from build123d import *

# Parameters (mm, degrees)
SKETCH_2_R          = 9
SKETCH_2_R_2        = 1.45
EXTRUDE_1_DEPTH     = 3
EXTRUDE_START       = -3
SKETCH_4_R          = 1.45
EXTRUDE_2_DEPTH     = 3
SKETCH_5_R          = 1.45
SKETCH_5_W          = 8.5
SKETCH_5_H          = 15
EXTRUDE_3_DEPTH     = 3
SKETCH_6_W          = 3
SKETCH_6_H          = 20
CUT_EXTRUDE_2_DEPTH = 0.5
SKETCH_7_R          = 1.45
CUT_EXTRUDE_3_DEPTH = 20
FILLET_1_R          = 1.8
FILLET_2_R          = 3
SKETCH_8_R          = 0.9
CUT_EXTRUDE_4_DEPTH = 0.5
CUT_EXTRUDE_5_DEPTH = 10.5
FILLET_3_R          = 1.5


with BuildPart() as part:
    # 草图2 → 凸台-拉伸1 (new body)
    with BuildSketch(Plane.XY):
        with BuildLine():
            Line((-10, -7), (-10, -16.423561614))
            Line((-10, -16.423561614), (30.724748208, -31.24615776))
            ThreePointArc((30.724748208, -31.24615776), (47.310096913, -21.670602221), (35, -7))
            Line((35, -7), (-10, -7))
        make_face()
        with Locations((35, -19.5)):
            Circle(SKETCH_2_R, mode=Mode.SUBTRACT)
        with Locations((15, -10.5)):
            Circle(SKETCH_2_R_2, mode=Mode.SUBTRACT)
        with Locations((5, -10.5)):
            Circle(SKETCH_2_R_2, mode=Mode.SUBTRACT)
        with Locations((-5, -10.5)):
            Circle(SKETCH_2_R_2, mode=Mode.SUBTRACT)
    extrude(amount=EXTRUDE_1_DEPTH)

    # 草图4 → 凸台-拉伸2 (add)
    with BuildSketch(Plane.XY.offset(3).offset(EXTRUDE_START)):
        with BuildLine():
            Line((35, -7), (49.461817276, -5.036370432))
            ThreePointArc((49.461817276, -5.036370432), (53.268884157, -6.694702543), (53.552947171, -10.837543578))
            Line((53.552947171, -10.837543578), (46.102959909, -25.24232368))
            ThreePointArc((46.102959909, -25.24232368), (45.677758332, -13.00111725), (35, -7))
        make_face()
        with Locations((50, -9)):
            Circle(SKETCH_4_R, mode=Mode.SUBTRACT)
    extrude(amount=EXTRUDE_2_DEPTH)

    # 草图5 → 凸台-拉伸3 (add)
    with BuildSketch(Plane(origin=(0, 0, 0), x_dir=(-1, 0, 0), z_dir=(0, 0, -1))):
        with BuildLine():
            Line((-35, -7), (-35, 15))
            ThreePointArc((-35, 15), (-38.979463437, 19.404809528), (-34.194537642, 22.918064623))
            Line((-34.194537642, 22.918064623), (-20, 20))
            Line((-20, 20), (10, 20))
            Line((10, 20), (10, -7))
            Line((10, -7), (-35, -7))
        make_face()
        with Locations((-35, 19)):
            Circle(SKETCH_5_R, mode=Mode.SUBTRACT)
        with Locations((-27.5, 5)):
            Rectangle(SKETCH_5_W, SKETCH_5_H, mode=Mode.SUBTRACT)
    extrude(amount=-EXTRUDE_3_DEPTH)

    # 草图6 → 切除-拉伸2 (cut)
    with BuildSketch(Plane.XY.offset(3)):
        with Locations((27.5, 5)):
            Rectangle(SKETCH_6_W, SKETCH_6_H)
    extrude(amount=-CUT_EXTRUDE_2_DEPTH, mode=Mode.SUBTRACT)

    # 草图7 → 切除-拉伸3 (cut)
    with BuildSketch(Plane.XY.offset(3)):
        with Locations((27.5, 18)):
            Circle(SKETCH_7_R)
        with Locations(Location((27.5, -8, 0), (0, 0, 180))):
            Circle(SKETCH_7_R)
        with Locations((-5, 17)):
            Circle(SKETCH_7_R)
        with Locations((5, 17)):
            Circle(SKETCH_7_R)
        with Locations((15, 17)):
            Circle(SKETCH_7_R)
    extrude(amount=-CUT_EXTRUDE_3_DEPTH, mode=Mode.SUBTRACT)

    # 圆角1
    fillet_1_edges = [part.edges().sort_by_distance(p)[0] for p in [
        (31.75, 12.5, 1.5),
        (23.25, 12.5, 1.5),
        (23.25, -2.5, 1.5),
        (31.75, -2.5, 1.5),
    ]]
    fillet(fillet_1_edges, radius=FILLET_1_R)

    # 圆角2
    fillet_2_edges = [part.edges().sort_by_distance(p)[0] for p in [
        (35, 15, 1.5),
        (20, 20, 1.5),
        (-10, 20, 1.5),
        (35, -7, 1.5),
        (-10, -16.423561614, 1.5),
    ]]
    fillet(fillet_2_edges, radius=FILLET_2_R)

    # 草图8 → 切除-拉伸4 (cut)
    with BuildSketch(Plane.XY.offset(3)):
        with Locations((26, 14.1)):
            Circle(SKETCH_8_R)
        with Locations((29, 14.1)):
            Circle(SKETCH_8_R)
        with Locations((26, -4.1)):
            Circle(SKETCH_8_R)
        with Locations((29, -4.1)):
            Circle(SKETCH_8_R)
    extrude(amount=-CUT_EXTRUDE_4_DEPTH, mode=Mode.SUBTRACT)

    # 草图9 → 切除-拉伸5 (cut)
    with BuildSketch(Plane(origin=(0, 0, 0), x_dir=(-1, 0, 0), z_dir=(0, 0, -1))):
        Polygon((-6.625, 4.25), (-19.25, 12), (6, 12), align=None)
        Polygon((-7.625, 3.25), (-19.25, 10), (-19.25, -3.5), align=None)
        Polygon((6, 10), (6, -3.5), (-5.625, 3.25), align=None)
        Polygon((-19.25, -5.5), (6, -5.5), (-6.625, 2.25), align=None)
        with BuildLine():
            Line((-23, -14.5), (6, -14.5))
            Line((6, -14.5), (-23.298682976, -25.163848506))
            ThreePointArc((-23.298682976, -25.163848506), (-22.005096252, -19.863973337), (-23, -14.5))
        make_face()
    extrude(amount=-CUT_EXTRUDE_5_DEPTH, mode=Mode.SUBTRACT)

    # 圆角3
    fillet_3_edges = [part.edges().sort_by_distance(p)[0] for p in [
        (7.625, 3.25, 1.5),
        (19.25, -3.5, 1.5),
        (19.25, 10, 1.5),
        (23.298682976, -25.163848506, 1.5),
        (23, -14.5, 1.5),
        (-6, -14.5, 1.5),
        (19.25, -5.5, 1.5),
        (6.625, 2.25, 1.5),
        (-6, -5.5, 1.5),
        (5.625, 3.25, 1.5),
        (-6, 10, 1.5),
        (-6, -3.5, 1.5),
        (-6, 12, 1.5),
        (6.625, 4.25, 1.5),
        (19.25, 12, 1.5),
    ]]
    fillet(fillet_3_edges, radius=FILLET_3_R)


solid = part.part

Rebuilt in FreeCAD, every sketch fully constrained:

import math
import FreeCAD as App
import Part
import Sketcher
from FreeCAD import Vector
Q = App.Units.Quantity


def edges_at(feature, points):
    """Names of the edges that pass closest to the given points."""
    edges = feature.Shape.Edges
    near = lambda p: min(range(len(edges)), key=lambda i: edges[i].distToShape(Part.Vertex(*p))[0])
    return sorted({f"Edge{near(p) + 1}" for p in points})


def add_polygon(sketch, points):
    """Adds a closed chain of lines whose ends are joined by coincident constraints."""
    first, n = sketch.GeometryCount, len(points)
    for a, b in zip(points, points[1:] + points[:1]):
        sketch.addGeometry(Part.LineSegment(App.Vector(*a, 0), App.Vector(*b, 0)), False)
    for i in range(n):
        sketch.addConstraint(Sketcher.Constraint("Coincident", first + i, 2, first + (i + 1) % n, 1))

doc = App.newDocument("Part")
params = doc.addObject("Spreadsheet::Sheet", "Params")
for row, (alias, value) in enumerate([
    ("sketch1_diameter", "18 mm"),
    ("sketch1_diameter2", "2.9 mm"),
    ("sketch1_radius", "12.5 mm"),
    ("sketch1_width", "45 mm"),
    ("pad1_length", "3 mm"),
    ("sketch2_radius", "4 mm"),
    ("sketch2_diameter", "2.9 mm"),
    ("sketch2_radius2", "12.5 mm"),
    ("pad2_length", "3 mm"),
    ("sketch3_radius", "4 mm"),
    ("sketch3_diameter", "2.9 mm"),
    ("sketch3_width", "45 mm"),
    ("sketch3_width2", "30 mm"),
    ("sketch3_height", "22 mm"),
    ("pad3_length", "3 mm"),
    ("sketch4_width", "3 mm"),
    ("sketch4_height", "20 mm"),
    ("pocket1_length", "0.5 mm"),
    ("sketch5_diameter", "2.9 mm"),
    ("pocket2_length", "20 mm"),
    ("fillet_radius", "1.8 mm"),
    ("fillet2_radius", "3 mm"),
    ("sketch6_diameter", "1.8 mm"),
    ("pocket3_length", "0.5 mm"),
    ("sketch7_radius", "13 mm"),
    ("sketch7_width", "29 mm"),
    ("sketch7_height", "13.5 mm"),
    ("sketch7_width2", "25.25 mm"),
    ("pocket4_length", "10.5 mm"),
    ("fillet3_radius", "1.5 mm"),
], start=1):
    params.set(f"A{row}", alias)
    params.set(f"B{row}", "=" + value)
    params.setAlias(f"B{row}", alias)

body = doc.addObject("PartDesign::Body", "Body")

# Sketch on XY plane
sketch1 = body.newObject("Sketcher::SketchObject", "Sketch")
sketch1.AttachmentSupport = (doc.getObject("XY_Plane"), [""])
sketch1.MapMode = "FlatFace"
sketch1.addGeometry(Part.LineSegment(Vector(-10, -7, 0), Vector(-10, -16.423562, 0)), False)
sketch1.addGeometry(Part.LineSegment(Vector(-10, -16.423562, 0), Vector(30.724748, -31.246158, 0)), False)
sketch1.addGeometry(Part.ArcOfCircle(Part.Circle(Vector(35, -19.5, 0), Vector(0, 0, 1), 12.5), math.radians(-110), math.radians(90)), False)
sketch1.addGeometry(Part.LineSegment(Vector(35, -7, 0), Vector(-10, -7, 0)), False)
sketch1.addGeometry(Part.Circle(Vector(35, -19.5, 0), Vector(0, 0, 1), 9), False)
sketch1.addGeometry(Part.Circle(Vector(-5, -10.5, 0), Vector(0, 0, 1), 1.45), False)
sketch1.addGeometry(Part.Circle(Vector(5, -10.5, 0), Vector(0, 0, 1), 1.45), False)
sketch1.addGeometry(Part.Circle(Vector(15, -10.5, 0), Vector(0, 0, 1), 1.45), False)
sketch1.addConstraint(Sketcher.Constraint("Coincident", 0, 2, 1, 1))
sketch1.addConstraint(Sketcher.Constraint("Tangent", 1, 2, 2, 1))
sketch1.addConstraint(Sketcher.Constraint("Tangent", 2, 2, 3, 1))
sketch1.addConstraint(Sketcher.Constraint("Coincident", 3, 2, 0, 1))
sketch1.addConstraint(Sketcher.Constraint("Vertical", 0))
sketch1.addConstraint(Sketcher.Constraint("Horizontal", 3))
sketch1.addConstraint(Sketcher.Constraint("Coincident", 4, 3, 2, 3))
sketch1.addConstraint(Sketcher.Constraint("Equal", 5, 6))
sketch1.addConstraint(Sketcher.Constraint("Equal", 6, 7))
sketch1.addConstraint(Sketcher.Constraint("Symmetric", 5, 3, 6, 3, -2))
sketch1.addConstraint(Sketcher.Constraint("Horizontal", 6, 3, 7, 3))
sketch1.addConstraint(Sketcher.Constraint("Diameter", 4, 18.0))
sketch1.addConstraint(Sketcher.Constraint("Diameter", 5, 2.9))
sketch1.addConstraint(Sketcher.Constraint("Radius", 2, 12.5))
sketch1.addConstraint(Sketcher.Constraint("DistanceX", 3, 2, 3, 1, 45.0))
sketch1.addConstraint(Sketcher.Constraint("Angle", 1, Q("-20 deg")))
sketch1.addConstraint(Sketcher.Constraint("DistanceX", -1, 1, 2, 3, 35.0))
sketch1.addConstraint(Sketcher.Constraint("DistanceX", 5, 3, -1, 1, 5.0))
sketch1.addConstraint(Sketcher.Constraint("DistanceX", -1, 1, 7, 3, 15.0))
sketch1.addConstraint(Sketcher.Constraint("DistanceY", 2, 2, -1, 1, 7.0))
sketch1.addConstraint(Sketcher.Constraint("DistanceY", 2, 3, 5, 3, 9.0))
sketch1.setExpression("Constraints[11]", "Params.sketch1_diameter")
sketch1.setExpression("Constraints[12]", "Params.sketch1_diameter2")
sketch1.setExpression("Constraints[13]", "Params.sketch1_radius")
sketch1.setExpression("Constraints[14]", "Params.sketch1_width")
pad1 = body.newObject("PartDesign::Pad", "Pad")
pad1.Profile = sketch1
pad1.setExpression("Length", "Params.pad1_length")

# Sketch on XY plane
sketch2 = body.newObject("Sketcher::SketchObject", "Sketch001")
sketch2.AttachmentSupport = (doc.getObject("XY_Plane"), [""])
sketch2.MapMode = "FlatFace"
sketch2.addGeometry(Part.LineSegment(Vector(49.461817, -5.03637, 0), Vector(35, -7, 0)), False)
sketch2.addGeometry(Part.ArcOfCircle(Part.Circle(Vector(35, -19.5, 0), Vector(0, 0, 1), 12.5), math.radians(-27.347487), math.radians(90)), False)
sketch2.addGeometry(Part.LineSegment(Vector(46.10296, -25.242324, 0), Vector(53.552947, -10.837544, 0)), False)
sketch2.addGeometry(Part.ArcOfCircle(Part.Circle(Vector(50, -9, 0), Vector(0, 0, 1), 4), math.radians(-27.347487), math.radians(97.73235)), False)
sketch2.addGeometry(Part.Circle(Vector(50, -9, 0), Vector(0, 0, 1), 1.45), False)
sketch2.addConstraint(Sketcher.Constraint("Coincident", 0, 2, 1, 2))
sketch2.addConstraint(Sketcher.Constraint("Tangent", 1, 1, 2, 1))
sketch2.addConstraint(Sketcher.Constraint("Tangent", 2, 2, 3, 1))
sketch2.addConstraint(Sketcher.Constraint("Tangent", 3, 2, 0, 1))
sketch2.addConstraint(Sketcher.Constraint("Coincident", 4, 3, 3, 3))
sketch2.addConstraint(Sketcher.Constraint("Vertical", 1, 3, 0, 2))
sketch2.addConstraint(Sketcher.Constraint("Radius", 3, 4.0))
sketch2.addConstraint(Sketcher.Constraint("Diameter", 4, 2.9))
sketch2.addConstraint(Sketcher.Constraint("Radius", 1, 12.5))
sketch2.addConstraint(Sketcher.Constraint("DistanceX", -1, 1, 1, 3, 35.0))
sketch2.addConstraint(Sketcher.Constraint("DistanceX", -1, 1, 3, 3, 50.0))
sketch2.addConstraint(Sketcher.Constraint("DistanceY", 3, 3, -1, 1, 9.0))
sketch2.addConstraint(Sketcher.Constraint("DistanceY", 0, 2, -1, 1, 7.0))
sketch2.setExpression("Constraints[6]", "Params.sketch2_radius")
sketch2.setExpression("Constraints[7]", "Params.sketch2_diameter")
sketch2.setExpression("Constraints[8]", "Params.sketch2_radius2")
pad2 = body.newObject("PartDesign::Pad", "Pad001")
pad2.Profile = sketch2
pad2.setExpression("Length", "Params.pad2_length")

# Sketch on XY plane
sketch3 = body.newObject("Sketcher::SketchObject", "Sketch002")
sketch3.AttachmentSupport = (doc.getObject("XY_Plane"), [""])
sketch3.MapMode = "FlatFace"
sketch3.addGeometry(Part.LineSegment(Vector(35, 15, 0), Vector(35, -7, 0)), False)  # 0
sketch3.addGeometry(Part.LineSegment(Vector(35, -7, 0), Vector(-10, -7, 0)), False)  # 1
sketch3.addGeometry(Part.LineSegment(Vector(-10, -7, 0), Vector(-10, 20, 0)), False)  # 2
sketch3.addGeometry(Part.LineSegment(Vector(-10, 20, 0), Vector(20, 20, 0)), False)  # 3
sketch3.addGeometry(Part.LineSegment(Vector(20, 20, 0), Vector(34.194538, 22.918065, 0)), False)  # 4
sketch3.addGeometry(Part.ArcOfCircle(Part.Circle(Vector(35, 19, 0), Vector(0, 0, 1), 4), math.radians(-90), math.radians(101.616826)), False)  # 5
add_polygon(sketch3, [(31.75, -2.5), (31.75, 12.5), (23.25, 12.5), (23.25, -2.5)])  # lines 6-9
sketch3.addGeometry(Part.Circle(Vector(35, 19, 0), Vector(0, 0, 1), 1.45), False)  # 10
sketch3.addConstraint(Sketcher.Constraint("Coincident", 0, 2, 1, 1))
sketch3.addConstraint(Sketcher.Constraint("Coincident", 1, 2, 2, 1))
sketch3.addConstraint(Sketcher.Constraint("Coincident", 2, 2, 3, 1))
sketch3.addConstraint(Sketcher.Constraint("Coincident", 3, 2, 4, 1))
sketch3.addConstraint(Sketcher.Constraint("Tangent", 4, 2, 5, 2))
sketch3.addConstraint(Sketcher.Constraint("Coincident", 5, 1, 0, 1))
sketch3.addConstraint(Sketcher.Constraint("Vertical", 0))
sketch3.addConstraint(Sketcher.Constraint("Horizontal", 1))
sketch3.addConstraint(Sketcher.Constraint("Vertical", 2))
sketch3.addConstraint(Sketcher.Constraint("Horizontal", 3))
sketch3.addConstraint(Sketcher.Constraint("Vertical", 6))
sketch3.addConstraint(Sketcher.Constraint("Horizontal", 7))
sketch3.addConstraint(Sketcher.Constraint("Vertical", 8))
sketch3.addConstraint(Sketcher.Constraint("Horizontal", 9))
sketch3.addConstraint(Sketcher.Constraint("Coincident", 10, 3, 5, 3))
sketch3.addConstraint(Sketcher.Constraint("Vertical", 10, 3, 0, 2))
sketch3.addConstraint(Sketcher.Constraint("Radius", 5, 4.0))
sketch3.addConstraint(Sketcher.Constraint("Diameter", 10, 2.9))
sketch3.addConstraint(Sketcher.Constraint("DistanceX", 1, 2, 1, 1, 45.0))
sketch3.addConstraint(Sketcher.Constraint("DistanceX", 3, 1, 3, 2, 30.0))
sketch3.addConstraint(Sketcher.Constraint("DistanceY", 0, 2, 0, 1, 22.0))
sketch3.addConstraint(Sketcher.Constraint("DistanceY", 2, 1, 2, 2, 27.0))
sketch3.addConstraint(Sketcher.Constraint("DistanceY", 6, 1, 6, 2, 15.0))
sketch3.addConstraint(Sketcher.Constraint("DistanceX", 7, 2, 7, 1, 8.5))
sketch3.addConstraint(Sketcher.Constraint("DistanceX", -1, 1, 5, 3, 35.0))
sketch3.addConstraint(Sketcher.Constraint("DistanceY", -1, 1, 5, 3, 19.0))
sketch3.addConstraint(Sketcher.Constraint("DistanceY", -1, 1, 6, 2, 12.5))
sketch3.addConstraint(Sketcher.Constraint("DistanceX", -1, 1, 6, 2, 31.75))
sketch3.setExpression("Constraints[20]", "Params.sketch3_radius")
sketch3.setExpression("Constraints[21]", "Params.sketch3_diameter")
sketch3.setExpression("Constraints[22]", "Params.sketch3_width")
sketch3.setExpression("Constraints[23]", "Params.sketch3_width2")
sketch3.setExpression("Constraints[24]", "Params.sketch3_height")
pad3 = body.newObject("PartDesign::Pad", "Pad002")
pad3.Profile = sketch3
pad3.setExpression("Length", "Params.pad3_length")

# Sketch on XY plane
sketch4 = body.newObject("Sketcher::SketchObject", "Sketch003")
sketch4.AttachmentSupport = (doc.getObject("XY_Plane"), [""])
sketch4.MapMode = "FlatFace"
sketch4.AttachmentOffset = App.Placement(Vector(0, 0, 3), App.Rotation())
add_polygon(sketch4, [(26, 15), (26, -5), (29, -5), (29, 15)])  # lines 0-3
sketch4.addConstraint(Sketcher.Constraint("Vertical", 0))
sketch4.addConstraint(Sketcher.Constraint("Horizontal", 1))
sketch4.addConstraint(Sketcher.Constraint("Vertical", 2))
sketch4.addConstraint(Sketcher.Constraint("Horizontal", 3))
sketch4.addConstraint(Sketcher.Constraint("DistanceX", 1, 1, 1, 2, 3.0))
sketch4.addConstraint(Sketcher.Constraint("DistanceY", 0, 2, 0, 1, 20.0))
sketch4.addConstraint(Sketcher.Constraint("DistanceX", -1, 1, 0, 2, 26.0))
sketch4.addConstraint(Sketcher.Constraint("DistanceY", 0, 2, -1, 1, 5.0))
sketch4.setExpression("Constraints[8]", "Params.sketch4_width")
sketch4.setExpression("Constraints[9]", "Params.sketch4_height")
pocket1 = body.newObject("PartDesign::Pocket", "Pocket")
pocket1.Profile = sketch4
pocket1.setExpression("Length", "Params.pocket1_length")

# Sketch on XY plane
sketch5 = body.newObject("Sketcher::SketchObject", "Sketch004")
sketch5.AttachmentSupport = (doc.getObject("XY_Plane"), [""])
sketch5.MapMode = "FlatFace"
sketch5.AttachmentOffset = App.Placement(Vector(0, 0, 3), App.Rotation())
sketch5.addGeometry(Part.Circle(Vector(27.5, 18, 0), Vector(0, 0, 1), 1.45), False)
sketch5.addGeometry(Part.Circle(Vector(27.5, -8, 0), Vector(0, 0, 1), 1.45), False)
sketch5.addGeometry(Part.Circle(Vector(-5, 17, 0), Vector(0, 0, 1), 1.45), False)
sketch5.addGeometry(Part.Circle(Vector(5, 17, 0), Vector(0, 0, 1), 1.45), False)
sketch5.addGeometry(Part.Circle(Vector(15, 17, 0), Vector(0, 0, 1), 1.45), False)
sketch5.addConstraint(Sketcher.Constraint("Equal", 0, 1))
sketch5.addConstraint(Sketcher.Constraint("Equal", 1, 2))
sketch5.addConstraint(Sketcher.Constraint("Equal", 2, 3))
sketch5.addConstraint(Sketcher.Constraint("Equal", 3, 4))
sketch5.addConstraint(Sketcher.Constraint("Symmetric", 2, 3, 3, 3, -2))
sketch5.addConstraint(Sketcher.Constraint("Horizontal", 3, 3, 4, 3))
sketch5.addConstraint(Sketcher.Constraint("Vertical", 0, 3, 1, 3))
sketch5.addConstraint(Sketcher.Constraint("Diameter", 0, 2.9))
sketch5.addConstraint(Sketcher.Constraint("DistanceY", -1, 1, 0, 3, 18.0))
sketch5.addConstraint(Sketcher.Constraint("DistanceY", 1, 3, -1, 1, 8.0))
sketch5.addConstraint(Sketcher.Constraint("DistanceX", 2, 3, -1, 1, 5.0))
sketch5.addConstraint(Sketcher.Constraint("DistanceY", -1, 1, 2, 3, 17.0))
sketch5.addConstraint(Sketcher.Constraint("DistanceX", -1, 1, 4, 3, 15.0))
sketch5.addConstraint(Sketcher.Constraint("DistanceX", -1, 1, 0, 3, 27.5))
sketch5.setExpression("Constraints[7]", "Params.sketch5_diameter")
pocket2 = body.newObject("PartDesign::Pocket", "Pocket001")
pocket2.Profile = sketch5
pocket2.setExpression("Length", "Params.pocket2_length")
doc.recompute()

fillet = body.newObject("PartDesign::Fillet", "Fillet")
fillet.Base = (pocket2, edges_at(pocket2, [
    (31.75, 12.5, 1.5),
    (23.25, 12.5, 1.5),
    (23.25, -2.5, 1.5),
    (31.75, -2.5, 1.5),
]))
fillet.setExpression("Radius", "Params.fillet_radius")
doc.recompute()

fillet2 = body.newObject("PartDesign::Fillet", "Fillet001")
fillet2.Base = (fillet, edges_at(fillet, [
    (35, 15, 1.5),
    (20, 20, 1.5),
    (-10, 20, 1.5),
    (35, -7, 1.5),
    (-10, -16.424, 1.5),
]))
fillet2.setExpression("Radius", "Params.fillet2_radius")

# Sketch on XY plane
sketch6 = body.newObject("Sketcher::SketchObject", "Sketch005")
sketch6.AttachmentSupport = (doc.getObject("XY_Plane"), [""])
sketch6.MapMode = "FlatFace"
sketch6.AttachmentOffset = App.Placement(Vector(0, 0, 3), App.Rotation())
sketch6.addGeometry(Part.Circle(Vector(26, 14.1, 0), Vector(0, 0, 1), 0.9), False)
sketch6.addGeometry(Part.Circle(Vector(29, 14.1, 0), Vector(0, 0, 1), 0.9), False)
sketch6.addGeometry(Part.Circle(Vector(26, -4.1, 0), Vector(0, 0, 1), 0.9), False)
sketch6.addGeometry(Part.Circle(Vector(29, -4.1, 0), Vector(0, 0, 1), 0.9), False)
sketch6.addConstraint(Sketcher.Constraint("Equal", 0, 1))
sketch6.addConstraint(Sketcher.Constraint("Equal", 1, 2))
sketch6.addConstraint(Sketcher.Constraint("Equal", 2, 3))
sketch6.addConstraint(Sketcher.Constraint("Horizontal", 0, 3, 1, 3))
sketch6.addConstraint(Sketcher.Constraint("Horizontal", 2, 3, 3, 3))
sketch6.addConstraint(Sketcher.Constraint("Vertical", 0, 3, 2, 3))
sketch6.addConstraint(Sketcher.Constraint("Vertical", 1, 3, 3, 3))
sketch6.addConstraint(Sketcher.Constraint("Diameter", 0, 1.8))
sketch6.addConstraint(Sketcher.Constraint("DistanceX", -1, 1, 0, 3, 26.0))
sketch6.addConstraint(Sketcher.Constraint("DistanceX", -1, 1, 1, 3, 29.0))
sketch6.addConstraint(Sketcher.Constraint("DistanceY", -1, 1, 0, 3, 14.1))
sketch6.addConstraint(Sketcher.Constraint("DistanceY", 2, 3, -1, 1, 4.1))
sketch6.setExpression("Constraints[7]", "Params.sketch6_diameter")
pocket3 = body.newObject("PartDesign::Pocket", "Pocket002")
pocket3.Profile = sketch6
pocket3.setExpression("Length", "Params.pocket3_length")

# Sketch on XY plane
sketch7 = body.newObject("Sketcher::SketchObject", "Sketch006")
sketch7.AttachmentSupport = (doc.getObject("XY_Plane"), [""])
sketch7.MapMode = "FlatFace"
add_polygon(sketch7, [(19.25, 12), (6.625, 4.25), (-6, 12)])  # lines 0-2
add_polygon(sketch7, [(7.625, 3.25), (19.25, 10), (19.25, -3.5)])  # lines 3-5
add_polygon(sketch7, [(-6, -3.5), (-6, 10), (5.625, 3.25)])  # lines 6-8
add_polygon(sketch7, [(19.25, -5.5), (-6, -5.5), (6.625, 2.25)])  # lines 9-11
sketch7.addGeometry(Part.LineSegment(Vector(-6, -14.5, 0), Vector(23, -14.5, 0)), False)  # 12
sketch7.addGeometry(Part.ArcOfCircle(Part.Circle(Vector(35, -19.5, 0), Vector(0, 0, 1), 13), math.radians(157.380135), math.radians(205.828613)), False)  # 13
sketch7.addGeometry(Part.LineSegment(Vector(23.298683, -25.163849, 0), Vector(-6, -14.5, 0)), False)  # 14
sketch7.addConstraint(Sketcher.Constraint("Coincident", 12, 2, 13, 1))
sketch7.addConstraint(Sketcher.Constraint("Coincident", 13, 2, 14, 1))
sketch7.addConstraint(Sketcher.Constraint("Coincident", 14, 2, 12, 1))
sketch7.addConstraint(Sketcher.Constraint("Horizontal", 2))
sketch7.addConstraint(Sketcher.Constraint("Vertical", 4))
sketch7.addConstraint(Sketcher.Constraint("Vertical", 6))
sketch7.addConstraint(Sketcher.Constraint("Horizontal", 9))
sketch7.addConstraint(Sketcher.Constraint("Horizontal", 12))
sketch7.addConstraint(Sketcher.Constraint("Parallel", 5, 7))
sketch7.addConstraint(Sketcher.Constraint("Parallel", 3, 8))
sketch7.addConstraint(Sketcher.Constraint("Parallel", 0, 10))
sketch7.addConstraint(Sketcher.Constraint("Parallel", 1, 11))
sketch7.addConstraint(Sketcher.Constraint("Horizontal", 3, 2, 6, 2))
sketch7.addConstraint(Sketcher.Constraint("Horizontal", 5, 2, 7, 2))
sketch7.addConstraint(Sketcher.Constraint("Horizontal", 4, 2, 8, 2))
sketch7.addConstraint(Sketcher.Constraint("Vertical", 2, 2, 3, 2))
sketch7.addConstraint(Sketcher.Constraint("Vertical", 1, 2, 6, 2))
sketch7.addConstraint(Sketcher.Constraint("Vertical", 8, 2, 9, 2))
sketch7.addConstraint(Sketcher.Constraint("Vertical", 0, 2, 10, 2))
sketch7.addConstraint(Sketcher.Constraint("Vertical", 4, 2, 11, 2))
sketch7.addConstraint(Sketcher.Constraint("Vertical", 9, 2, 14, 2))
sketch7.addConstraint(Sketcher.Constraint("Radius", 13, 13.0))
sketch7.addConstraint(Sketcher.Constraint("DistanceX", 12, 1, 12, 2, 29.0))
sketch7.addConstraint(Sketcher.Constraint("Angle", 14, Q("160 deg")))
sketch7.addConstraint(Sketcher.Constraint("DistanceY", 4, 2, 4, 1, 13.5))
sketch7.addConstraint(Sketcher.Constraint("DistanceX", -1, 1, 13, 3, 35.0))
sketch7.addConstraint(Sketcher.Constraint("DistanceX", 1, 2, -1, 1, 6.0))
sketch7.addConstraint(Sketcher.Constraint("DistanceY", -1, 1, 1, 2, 12.0))
sketch7.addConstraint(Sketcher.Constraint("DistanceY", -1, 1, 3, 2, 10.0))
sketch7.addConstraint(Sketcher.Constraint("DistanceY", 13, 3, 4, 2, 16.0))
sketch7.addConstraint(Sketcher.Constraint("DistanceX", 0, 2, 5, 2, 1.0))
sketch7.addConstraint(Sketcher.Constraint("DistanceY", 5, 2, 0, 2, 1.0))
sketch7.addConstraint(Sketcher.Constraint("DistanceY", 9, 2, 8, 2, 2.0))
sketch7.addConstraint(Sketcher.Constraint("DistanceX", 2, 1, 2, 2, 25.25))
sketch7.setExpression("Constraints[33]", "Params.sketch7_radius")
sketch7.setExpression("Constraints[34]", "Params.sketch7_width")
sketch7.setExpression("Constraints[36]", "Params.sketch7_height")
sketch7.setExpression("Constraints[45]", "Params.sketch7_width2")
pocket4 = body.newObject("PartDesign::Pocket", "Pocket003")
pocket4.Profile = sketch7
pocket4.setExpression("Length", "Params.pocket4_length")
pocket4.Reversed = True
doc.recompute()

fillet3 = body.newObject("PartDesign::Fillet", "Fillet002")
fillet3.Base = (pocket4, edges_at(pocket4, [
    (7.625, 3.25, 1.5),
    (19.25, -3.5, 1.5),
    (19.25, 10, 1.5),
    (23.299, -25.164, 1.5),
    (23, -14.5, 1.5),
    (-6, -14.5, 1.5),
    (19.25, -5.5, 1.5),
    (6.625, 2.25, 1.5),
    (-6, -5.5, 1.5),
    (5.625, 3.25, 1.5),
    (-6, 10, 1.5),
    (-6, -3.5, 1.5),
    (-6, 12, 1.5),
    (6.625, 4.25, 1.5),
    (19.25, 12, 1.5),
]))
fillet3.setExpression("Radius", "Params.fillet3_radius")

doc.recompute()
